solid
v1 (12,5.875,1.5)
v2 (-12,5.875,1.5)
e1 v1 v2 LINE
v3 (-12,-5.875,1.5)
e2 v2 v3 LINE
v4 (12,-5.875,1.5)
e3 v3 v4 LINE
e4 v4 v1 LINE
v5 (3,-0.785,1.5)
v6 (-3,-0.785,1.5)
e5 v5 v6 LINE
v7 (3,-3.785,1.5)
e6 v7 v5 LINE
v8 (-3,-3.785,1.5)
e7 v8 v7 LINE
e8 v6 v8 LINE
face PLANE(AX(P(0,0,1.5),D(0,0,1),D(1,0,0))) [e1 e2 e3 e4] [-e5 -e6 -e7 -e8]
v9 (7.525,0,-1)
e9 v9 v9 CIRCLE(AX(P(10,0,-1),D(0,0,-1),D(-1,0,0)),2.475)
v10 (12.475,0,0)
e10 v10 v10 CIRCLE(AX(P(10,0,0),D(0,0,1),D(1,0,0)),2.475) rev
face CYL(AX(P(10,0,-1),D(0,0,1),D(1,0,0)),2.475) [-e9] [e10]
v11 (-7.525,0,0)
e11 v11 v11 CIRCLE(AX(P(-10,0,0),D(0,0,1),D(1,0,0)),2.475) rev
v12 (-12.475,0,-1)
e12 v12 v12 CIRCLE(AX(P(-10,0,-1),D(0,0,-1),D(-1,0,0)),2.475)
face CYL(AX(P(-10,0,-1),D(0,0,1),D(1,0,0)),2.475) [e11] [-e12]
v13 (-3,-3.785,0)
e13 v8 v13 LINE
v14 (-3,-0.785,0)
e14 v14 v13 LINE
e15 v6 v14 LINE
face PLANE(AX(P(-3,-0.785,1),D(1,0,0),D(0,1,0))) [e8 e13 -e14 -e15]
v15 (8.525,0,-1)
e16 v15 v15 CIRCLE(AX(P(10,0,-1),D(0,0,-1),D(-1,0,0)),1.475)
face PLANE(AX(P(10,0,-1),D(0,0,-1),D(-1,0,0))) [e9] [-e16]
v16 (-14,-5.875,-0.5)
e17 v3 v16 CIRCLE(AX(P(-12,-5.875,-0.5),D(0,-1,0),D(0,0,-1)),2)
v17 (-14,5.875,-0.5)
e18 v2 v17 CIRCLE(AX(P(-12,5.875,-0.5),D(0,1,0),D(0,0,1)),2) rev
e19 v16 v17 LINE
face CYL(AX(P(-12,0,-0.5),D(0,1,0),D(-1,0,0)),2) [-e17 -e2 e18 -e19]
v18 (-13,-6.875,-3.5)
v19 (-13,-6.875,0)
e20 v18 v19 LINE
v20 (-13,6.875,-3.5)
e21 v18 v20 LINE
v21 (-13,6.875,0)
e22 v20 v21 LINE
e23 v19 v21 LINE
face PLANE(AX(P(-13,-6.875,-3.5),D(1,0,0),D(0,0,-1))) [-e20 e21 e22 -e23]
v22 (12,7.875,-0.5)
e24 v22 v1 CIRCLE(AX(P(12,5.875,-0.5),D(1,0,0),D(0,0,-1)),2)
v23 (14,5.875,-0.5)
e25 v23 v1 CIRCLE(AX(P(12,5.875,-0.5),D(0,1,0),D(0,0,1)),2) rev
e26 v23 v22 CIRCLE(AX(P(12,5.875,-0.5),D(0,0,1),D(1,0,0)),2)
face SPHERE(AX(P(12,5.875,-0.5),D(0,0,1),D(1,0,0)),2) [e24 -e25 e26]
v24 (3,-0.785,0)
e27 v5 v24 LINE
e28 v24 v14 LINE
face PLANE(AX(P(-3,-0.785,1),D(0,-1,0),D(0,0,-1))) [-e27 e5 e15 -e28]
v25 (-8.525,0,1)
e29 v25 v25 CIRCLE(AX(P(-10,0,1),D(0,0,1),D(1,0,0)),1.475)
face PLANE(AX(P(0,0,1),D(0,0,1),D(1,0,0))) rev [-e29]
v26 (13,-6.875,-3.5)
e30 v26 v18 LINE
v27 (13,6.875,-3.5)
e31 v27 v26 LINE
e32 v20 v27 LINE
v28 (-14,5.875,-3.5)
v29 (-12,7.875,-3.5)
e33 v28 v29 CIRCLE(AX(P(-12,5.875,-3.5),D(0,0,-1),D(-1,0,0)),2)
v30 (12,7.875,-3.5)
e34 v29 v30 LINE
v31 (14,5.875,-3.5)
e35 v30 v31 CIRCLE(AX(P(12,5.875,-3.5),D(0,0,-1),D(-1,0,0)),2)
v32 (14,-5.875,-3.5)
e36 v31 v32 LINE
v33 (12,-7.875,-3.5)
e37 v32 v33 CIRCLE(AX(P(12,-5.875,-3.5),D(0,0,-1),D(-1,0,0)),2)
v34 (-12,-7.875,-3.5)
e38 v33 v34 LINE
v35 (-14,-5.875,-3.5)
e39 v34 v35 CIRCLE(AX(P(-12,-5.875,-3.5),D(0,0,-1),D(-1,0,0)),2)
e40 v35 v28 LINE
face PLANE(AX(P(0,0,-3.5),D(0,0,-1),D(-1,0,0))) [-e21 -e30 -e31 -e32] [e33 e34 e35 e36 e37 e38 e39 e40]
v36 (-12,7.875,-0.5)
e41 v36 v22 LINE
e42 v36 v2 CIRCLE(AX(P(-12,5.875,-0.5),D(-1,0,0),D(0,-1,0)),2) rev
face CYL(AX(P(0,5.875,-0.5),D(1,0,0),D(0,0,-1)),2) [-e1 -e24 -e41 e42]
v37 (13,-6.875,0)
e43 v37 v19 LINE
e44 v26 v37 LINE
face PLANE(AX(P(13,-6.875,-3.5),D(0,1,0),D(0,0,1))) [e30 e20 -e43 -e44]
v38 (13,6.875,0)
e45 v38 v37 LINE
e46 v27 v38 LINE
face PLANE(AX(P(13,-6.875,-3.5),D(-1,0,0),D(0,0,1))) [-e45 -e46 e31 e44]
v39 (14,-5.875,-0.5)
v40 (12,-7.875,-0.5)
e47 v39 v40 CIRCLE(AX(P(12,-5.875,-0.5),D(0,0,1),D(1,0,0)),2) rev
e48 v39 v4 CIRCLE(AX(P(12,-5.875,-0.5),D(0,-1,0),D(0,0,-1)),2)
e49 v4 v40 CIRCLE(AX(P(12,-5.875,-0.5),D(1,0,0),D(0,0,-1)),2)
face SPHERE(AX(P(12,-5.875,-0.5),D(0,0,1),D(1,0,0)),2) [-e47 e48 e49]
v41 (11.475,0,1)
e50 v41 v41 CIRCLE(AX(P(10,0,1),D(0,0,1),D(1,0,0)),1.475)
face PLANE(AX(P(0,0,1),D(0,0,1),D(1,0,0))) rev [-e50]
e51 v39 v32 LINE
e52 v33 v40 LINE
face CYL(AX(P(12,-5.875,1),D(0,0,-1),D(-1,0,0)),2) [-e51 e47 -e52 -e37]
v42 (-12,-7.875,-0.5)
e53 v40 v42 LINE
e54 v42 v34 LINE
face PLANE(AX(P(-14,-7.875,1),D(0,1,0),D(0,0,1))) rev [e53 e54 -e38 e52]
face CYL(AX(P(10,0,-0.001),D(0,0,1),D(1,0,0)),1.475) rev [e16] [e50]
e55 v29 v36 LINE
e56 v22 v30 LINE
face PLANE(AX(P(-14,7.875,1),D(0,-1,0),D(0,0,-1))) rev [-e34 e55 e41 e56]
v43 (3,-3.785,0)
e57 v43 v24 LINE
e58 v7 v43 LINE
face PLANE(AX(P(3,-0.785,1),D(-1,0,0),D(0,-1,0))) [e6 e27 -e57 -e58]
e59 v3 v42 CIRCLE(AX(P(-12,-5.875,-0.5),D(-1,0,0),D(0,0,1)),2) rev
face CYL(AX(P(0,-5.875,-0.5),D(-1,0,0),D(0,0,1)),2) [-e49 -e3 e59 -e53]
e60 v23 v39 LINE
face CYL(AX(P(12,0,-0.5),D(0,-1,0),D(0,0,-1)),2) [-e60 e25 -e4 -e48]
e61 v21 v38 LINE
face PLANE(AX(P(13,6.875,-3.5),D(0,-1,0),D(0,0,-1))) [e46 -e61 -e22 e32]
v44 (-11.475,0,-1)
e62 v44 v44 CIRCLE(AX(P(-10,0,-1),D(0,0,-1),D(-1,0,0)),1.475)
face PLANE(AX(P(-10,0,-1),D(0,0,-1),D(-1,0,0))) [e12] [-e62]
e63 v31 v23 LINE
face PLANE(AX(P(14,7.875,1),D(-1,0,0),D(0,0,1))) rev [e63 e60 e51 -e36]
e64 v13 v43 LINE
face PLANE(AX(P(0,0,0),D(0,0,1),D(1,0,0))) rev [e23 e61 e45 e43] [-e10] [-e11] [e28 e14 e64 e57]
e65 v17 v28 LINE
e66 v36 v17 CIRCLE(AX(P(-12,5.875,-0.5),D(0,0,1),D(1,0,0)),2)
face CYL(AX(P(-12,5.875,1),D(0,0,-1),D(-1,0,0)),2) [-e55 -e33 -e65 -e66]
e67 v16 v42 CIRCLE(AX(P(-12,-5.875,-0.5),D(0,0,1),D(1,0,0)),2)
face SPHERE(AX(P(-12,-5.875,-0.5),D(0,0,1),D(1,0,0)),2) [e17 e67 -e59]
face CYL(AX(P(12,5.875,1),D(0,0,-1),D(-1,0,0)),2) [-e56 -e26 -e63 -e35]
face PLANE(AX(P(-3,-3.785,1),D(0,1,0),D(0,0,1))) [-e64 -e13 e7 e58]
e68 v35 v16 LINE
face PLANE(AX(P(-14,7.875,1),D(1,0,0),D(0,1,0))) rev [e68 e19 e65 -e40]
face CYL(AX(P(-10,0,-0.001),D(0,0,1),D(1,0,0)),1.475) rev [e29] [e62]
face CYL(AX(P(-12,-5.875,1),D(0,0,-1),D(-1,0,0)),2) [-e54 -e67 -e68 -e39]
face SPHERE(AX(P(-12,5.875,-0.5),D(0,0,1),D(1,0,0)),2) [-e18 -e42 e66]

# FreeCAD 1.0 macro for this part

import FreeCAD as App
import Part
import Sketcher
from FreeCAD import Vector


def edges_at(feature, points):
    """Names of the edges that pass closest to the given points."""
    edges = feature.Shape.Edges
    near = lambda p: min(range(len(edges)), key=lambda i: edges[i].distToShape(Part.Vertex(*p))[0])
    return sorted({f"Edge{near(p) + 1}" for p in points})


def add_polygon(sketch, points):
    """Adds a closed chain of lines whose ends are joined by coincident constraints."""
    first, n = sketch.GeometryCount, len(points)
    for a, b in zip(points, points[1:] + points[:1]):
        sketch.addGeometry(Part.LineSegment(App.Vector(*a, 0), App.Vector(*b, 0)), False)
    for i in range(n):
        sketch.addConstraint(Sketcher.Constraint("Coincident", first + i, 2, first + (i + 1) % n, 1))

doc = App.newDocument("Part")
body = doc.addObject("PartDesign::Body", "Body")

sketch1 = body.newObject("Sketcher::SketchObject", "Sketch")
sketch1.AttachmentSupport = (doc.getObject("XY_Plane"), [""])
sketch1.MapMode = "FlatFace"
add_polygon(sketch1, [(-14, 7.9), (-14, -7.9), (14, -7.9), (14, 7.9)])
add_polygon(sketch1, [(3, -3.8), (-3, -3.8), (-3, -0.8), (3, -0.8)])
sketch1.addConstraint([
    Sketcher.Constraint("Vertical", 0),
    Sketcher.Constraint("Horizontal", 1),
    Sketcher.Constraint("Vertical", 2),
    Sketcher.Constraint("Horizontal", 3),
    Sketcher.Constraint("Horizontal", 4),
    Sketcher.Constraint("Vertical", 5),
    Sketcher.Constraint("Horizontal", 6),
    Sketcher.Constraint("Vertical", 7),
    Sketcher.Constraint("Symmetric", 0, 2, 2, 2, -1, 1),
    Sketcher.Constraint("DistanceX", 1, 1, 1, 2, 28.0),
    Sketcher.Constraint("DistanceX", 4, 2, 4, 1, 6.0),
    Sketcher.Constraint("DistanceY", 5, 1, 5, 2, 3.0),
    Sketcher.Constraint("DistanceX", 4, 2, -1, 1, 3.0),
    Sketcher.Constraint("DistanceY", 0, 2, 0, 1, 15.75),
    Sketcher.Constraint("DistanceY", 0, 2, 4, 2, 4.09),
])
pad1 = body.newObject("PartDesign::Pad", "Pad")
pad1.Profile = sketch1
pad1.Length = 1

sketch2 = body.newObject("Sketcher::SketchObject", "Sketch001")
sketch2.AttachmentSupport = (doc.getObject("XY_Plane"), [""])
sketch2.MapMode = "FlatFace"
sketch2.AttachmentOffset = App.Placement(Vector(0, 0, 1), App.Rotation())
sketch2.addGeometry(Part.Circle(Vector(10, 0, 0), Vector(0, 0, 1), 1.5), False)
sketch2.addConstraint([
    Sketcher.Constraint("PointOnObject", 0, 3, -1),
    Sketcher.Constraint("Diameter", 0, 2.95),
    Sketcher.Constraint("DistanceX", -1, 1, 0, 3, 10.0),
])
pocket1 = body.newObject("PartDesign::Pocket", "Pocket")
pocket1.Profile = sketch2
pocket1.Type = "UpToFirst"

sketch3 = body.newObject("Sketcher::SketchObject", "Sketch002")
sketch3.AttachmentSupport = (doc.getObject("XY_Plane"), [""])
sketch3.MapMode = "FlatFace"
sketch3.AttachmentOffset = App.Placement(Vector(0, 0, 1), App.Rotation())
sketch3.addGeometry(Part.Circle(Vector(-10, 0, 0), Vector(0, 0, 1), 1.5), False)
sketch3.addConstraint([
    Sketcher.Constraint("PointOnObject", 0, 3, -1),
    Sketcher.Constraint("Diameter", 0, 2.95),
    Sketcher.Constraint("DistanceX", 0, 3, -1, 1, 10.0),
])
pocket2 = body.newObject("PartDesign::Pocket", "Pocket001")
pocket2.Profile = sketch3
pocket2.Type = "UpToFirst"

sketch4 = body.newObject("Sketcher::SketchObject", "Sketch003")
sketch4.AttachmentSupport = (doc.getObject("XY_Plane"), [""])
sketch4.MapMode = "FlatFace"
sketch4.AttachmentOffset = App.Placement(Vector(0, 0, 1), App.Rotation())
add_polygon(sketch4, [(-14, 7.9), (-14, -7.9), (14, -7.9), (14, 7.9)])
add_polygon(sketch4, [(3, -3.8), (-3, -3.8), (-3, -0.8), (3, -0.8)])
sketch4.addConstraint([
    Sketcher.Constraint("Vertical", 0),
    Sketcher.Constraint("Horizontal", 1),
    Sketcher.Constraint("Vertical", 2),
    Sketcher.Constraint("Horizontal", 3),
    Sketcher.Constraint("Horizontal", 4),
    Sketcher.Constraint("Vertical", 5),
    Sketcher.Constraint("Horizontal", 6),
    Sketcher.Constraint("Vertical", 7),
    Sketcher.Constraint("Symmetric", 0, 2, 2, 2, -1, 1),
    Sketcher.Constraint("DistanceX", 1, 1, 1, 2, 28.0),
    Sketcher.Constraint("DistanceX", 4, 2, 4, 1, 6.0),
    Sketcher.Constraint("DistanceY", 5, 1, 5, 2, 3.0),
    Sketcher.Constraint("DistanceX", 4, 2, -1, 1, 3.0),
    Sketcher.Constraint("DistanceY", 0, 2, 0, 1, 15.75),
    Sketcher.Constraint("DistanceY", 0, 2, 4, 2, 4.09),
])
pad2 = body.newObject("PartDesign::Pad", "Pad001")
pad2.Profile = sketch4
pad2.Length = 0.5

sketch5 = body.newObject("Sketcher::SketchObject", "Sketch004")
sketch5.AttachmentSupport = (doc.getObject("XY_Plane"), [""])
sketch5.MapMode = "FlatFace"
sketch5.addGeometry([
    Part.Circle(Vector(10, 0, 0), Vector(0, 0, 1), 2.5),
    Part.Circle(Vector(10, 0, 0), Vector(0, 0, 1), 1.5),
    Part.Circle(Vector(-10, 0, 0), Vector(0, 0, 1), 2.5),
    Part.Circle(Vector(-10, 0, 0), Vector(0, 0, 1), 1.5),
], False)
sketch5.addConstraint([
    Sketcher.Constraint("Coincident", 1, 3, 0, 3),
    Sketcher.Constraint("Coincident", 3, 3, 2, 3),
    Sketcher.Constraint("Equal", 0, 2),
    Sketcher.Constraint("Equal", 1, 3),
    Sketcher.Constraint("Symmetric", 0, 3, 2, 3, -1, 1),
    Sketcher.Constraint("PointOnObject", 0, 3, -1),
    Sketcher.Constraint("Diameter", 0, 4.95),
    Sketcher.Constraint("Diameter", 1, 2.95),
    Sketcher.Constraint("DistanceX", -1, 1, 0, 3, 10.0),
])
pad3 = body.newObject("PartDesign::Pad", "Pad002")
pad3.Profile = sketch5
pad3.Length = 1
pad3.Reversed = True

sketch6 = body.newObject("Sketcher::SketchObject", "Sketch005")
sketch6.AttachmentSupport = (doc.getObject("XY_Plane"), [""])
sketch6.MapMode = "FlatFace"
add_polygon(sketch6, [(14, 8), (14, -8), (-14, -8), (-14, 8)])
add_polygon(sketch6, [(-13, -7), (13, -7), (13, 7), (-13, 7)])
sketch6.addConstraint([
    Sketcher.Constraint("Vertical", 0),
    Sketcher.Constraint("Horizontal", 1),
    Sketcher.Constraint("Vertical", 2),
    Sketcher.Constraint("Horizontal", 3),
    Sketcher.Constraint("Horizontal", 4),
    Sketcher.Constraint("Vertical", 5),
    Sketcher.Constraint("Horizontal", 6),
    Sketcher.Constraint("Vertical", 7),
    Sketcher.Constraint("Symmetric", 0, 2, 2, 2, -1, 1),
    Sketcher.Constraint("Symmetric", 4, 2, 6, 2, -1, 1),
    Sketcher.Constraint("DistanceX", 1, 2, 1, 1, 28.0),
    Sketcher.Constraint("DistanceX", 4, 1, 4, 2, 26.0),
    Sketcher.Constraint("DistanceY", 0, 2, 4, 2, 1.0),
    Sketcher.Constraint("DistanceY", 0, 2, 0, 1, 15.75),
])
pad4 = body.newObject("PartDesign::Pad", "Pad003")
pad4.Profile = sketch6
pad4.Length = 3.5
pad4.Reversed = True
doc.recompute()

fillet = body.newObject("PartDesign::Fillet", "Fillet")
fillet.Base = (pad4, edges_at(pad4, [
    (0, -7.875, 1.5),
    (14, 0, 1.5),
    (0, 7.875, 1.5),
    (-14, 0, 1.5),
    (14, -7.875, -1),
    (-14, -7.875, -1),
    (-14, 7.875, -1),
    (14, 7.875, -1),
]))
fillet.Radius = 2

doc.recompute()
